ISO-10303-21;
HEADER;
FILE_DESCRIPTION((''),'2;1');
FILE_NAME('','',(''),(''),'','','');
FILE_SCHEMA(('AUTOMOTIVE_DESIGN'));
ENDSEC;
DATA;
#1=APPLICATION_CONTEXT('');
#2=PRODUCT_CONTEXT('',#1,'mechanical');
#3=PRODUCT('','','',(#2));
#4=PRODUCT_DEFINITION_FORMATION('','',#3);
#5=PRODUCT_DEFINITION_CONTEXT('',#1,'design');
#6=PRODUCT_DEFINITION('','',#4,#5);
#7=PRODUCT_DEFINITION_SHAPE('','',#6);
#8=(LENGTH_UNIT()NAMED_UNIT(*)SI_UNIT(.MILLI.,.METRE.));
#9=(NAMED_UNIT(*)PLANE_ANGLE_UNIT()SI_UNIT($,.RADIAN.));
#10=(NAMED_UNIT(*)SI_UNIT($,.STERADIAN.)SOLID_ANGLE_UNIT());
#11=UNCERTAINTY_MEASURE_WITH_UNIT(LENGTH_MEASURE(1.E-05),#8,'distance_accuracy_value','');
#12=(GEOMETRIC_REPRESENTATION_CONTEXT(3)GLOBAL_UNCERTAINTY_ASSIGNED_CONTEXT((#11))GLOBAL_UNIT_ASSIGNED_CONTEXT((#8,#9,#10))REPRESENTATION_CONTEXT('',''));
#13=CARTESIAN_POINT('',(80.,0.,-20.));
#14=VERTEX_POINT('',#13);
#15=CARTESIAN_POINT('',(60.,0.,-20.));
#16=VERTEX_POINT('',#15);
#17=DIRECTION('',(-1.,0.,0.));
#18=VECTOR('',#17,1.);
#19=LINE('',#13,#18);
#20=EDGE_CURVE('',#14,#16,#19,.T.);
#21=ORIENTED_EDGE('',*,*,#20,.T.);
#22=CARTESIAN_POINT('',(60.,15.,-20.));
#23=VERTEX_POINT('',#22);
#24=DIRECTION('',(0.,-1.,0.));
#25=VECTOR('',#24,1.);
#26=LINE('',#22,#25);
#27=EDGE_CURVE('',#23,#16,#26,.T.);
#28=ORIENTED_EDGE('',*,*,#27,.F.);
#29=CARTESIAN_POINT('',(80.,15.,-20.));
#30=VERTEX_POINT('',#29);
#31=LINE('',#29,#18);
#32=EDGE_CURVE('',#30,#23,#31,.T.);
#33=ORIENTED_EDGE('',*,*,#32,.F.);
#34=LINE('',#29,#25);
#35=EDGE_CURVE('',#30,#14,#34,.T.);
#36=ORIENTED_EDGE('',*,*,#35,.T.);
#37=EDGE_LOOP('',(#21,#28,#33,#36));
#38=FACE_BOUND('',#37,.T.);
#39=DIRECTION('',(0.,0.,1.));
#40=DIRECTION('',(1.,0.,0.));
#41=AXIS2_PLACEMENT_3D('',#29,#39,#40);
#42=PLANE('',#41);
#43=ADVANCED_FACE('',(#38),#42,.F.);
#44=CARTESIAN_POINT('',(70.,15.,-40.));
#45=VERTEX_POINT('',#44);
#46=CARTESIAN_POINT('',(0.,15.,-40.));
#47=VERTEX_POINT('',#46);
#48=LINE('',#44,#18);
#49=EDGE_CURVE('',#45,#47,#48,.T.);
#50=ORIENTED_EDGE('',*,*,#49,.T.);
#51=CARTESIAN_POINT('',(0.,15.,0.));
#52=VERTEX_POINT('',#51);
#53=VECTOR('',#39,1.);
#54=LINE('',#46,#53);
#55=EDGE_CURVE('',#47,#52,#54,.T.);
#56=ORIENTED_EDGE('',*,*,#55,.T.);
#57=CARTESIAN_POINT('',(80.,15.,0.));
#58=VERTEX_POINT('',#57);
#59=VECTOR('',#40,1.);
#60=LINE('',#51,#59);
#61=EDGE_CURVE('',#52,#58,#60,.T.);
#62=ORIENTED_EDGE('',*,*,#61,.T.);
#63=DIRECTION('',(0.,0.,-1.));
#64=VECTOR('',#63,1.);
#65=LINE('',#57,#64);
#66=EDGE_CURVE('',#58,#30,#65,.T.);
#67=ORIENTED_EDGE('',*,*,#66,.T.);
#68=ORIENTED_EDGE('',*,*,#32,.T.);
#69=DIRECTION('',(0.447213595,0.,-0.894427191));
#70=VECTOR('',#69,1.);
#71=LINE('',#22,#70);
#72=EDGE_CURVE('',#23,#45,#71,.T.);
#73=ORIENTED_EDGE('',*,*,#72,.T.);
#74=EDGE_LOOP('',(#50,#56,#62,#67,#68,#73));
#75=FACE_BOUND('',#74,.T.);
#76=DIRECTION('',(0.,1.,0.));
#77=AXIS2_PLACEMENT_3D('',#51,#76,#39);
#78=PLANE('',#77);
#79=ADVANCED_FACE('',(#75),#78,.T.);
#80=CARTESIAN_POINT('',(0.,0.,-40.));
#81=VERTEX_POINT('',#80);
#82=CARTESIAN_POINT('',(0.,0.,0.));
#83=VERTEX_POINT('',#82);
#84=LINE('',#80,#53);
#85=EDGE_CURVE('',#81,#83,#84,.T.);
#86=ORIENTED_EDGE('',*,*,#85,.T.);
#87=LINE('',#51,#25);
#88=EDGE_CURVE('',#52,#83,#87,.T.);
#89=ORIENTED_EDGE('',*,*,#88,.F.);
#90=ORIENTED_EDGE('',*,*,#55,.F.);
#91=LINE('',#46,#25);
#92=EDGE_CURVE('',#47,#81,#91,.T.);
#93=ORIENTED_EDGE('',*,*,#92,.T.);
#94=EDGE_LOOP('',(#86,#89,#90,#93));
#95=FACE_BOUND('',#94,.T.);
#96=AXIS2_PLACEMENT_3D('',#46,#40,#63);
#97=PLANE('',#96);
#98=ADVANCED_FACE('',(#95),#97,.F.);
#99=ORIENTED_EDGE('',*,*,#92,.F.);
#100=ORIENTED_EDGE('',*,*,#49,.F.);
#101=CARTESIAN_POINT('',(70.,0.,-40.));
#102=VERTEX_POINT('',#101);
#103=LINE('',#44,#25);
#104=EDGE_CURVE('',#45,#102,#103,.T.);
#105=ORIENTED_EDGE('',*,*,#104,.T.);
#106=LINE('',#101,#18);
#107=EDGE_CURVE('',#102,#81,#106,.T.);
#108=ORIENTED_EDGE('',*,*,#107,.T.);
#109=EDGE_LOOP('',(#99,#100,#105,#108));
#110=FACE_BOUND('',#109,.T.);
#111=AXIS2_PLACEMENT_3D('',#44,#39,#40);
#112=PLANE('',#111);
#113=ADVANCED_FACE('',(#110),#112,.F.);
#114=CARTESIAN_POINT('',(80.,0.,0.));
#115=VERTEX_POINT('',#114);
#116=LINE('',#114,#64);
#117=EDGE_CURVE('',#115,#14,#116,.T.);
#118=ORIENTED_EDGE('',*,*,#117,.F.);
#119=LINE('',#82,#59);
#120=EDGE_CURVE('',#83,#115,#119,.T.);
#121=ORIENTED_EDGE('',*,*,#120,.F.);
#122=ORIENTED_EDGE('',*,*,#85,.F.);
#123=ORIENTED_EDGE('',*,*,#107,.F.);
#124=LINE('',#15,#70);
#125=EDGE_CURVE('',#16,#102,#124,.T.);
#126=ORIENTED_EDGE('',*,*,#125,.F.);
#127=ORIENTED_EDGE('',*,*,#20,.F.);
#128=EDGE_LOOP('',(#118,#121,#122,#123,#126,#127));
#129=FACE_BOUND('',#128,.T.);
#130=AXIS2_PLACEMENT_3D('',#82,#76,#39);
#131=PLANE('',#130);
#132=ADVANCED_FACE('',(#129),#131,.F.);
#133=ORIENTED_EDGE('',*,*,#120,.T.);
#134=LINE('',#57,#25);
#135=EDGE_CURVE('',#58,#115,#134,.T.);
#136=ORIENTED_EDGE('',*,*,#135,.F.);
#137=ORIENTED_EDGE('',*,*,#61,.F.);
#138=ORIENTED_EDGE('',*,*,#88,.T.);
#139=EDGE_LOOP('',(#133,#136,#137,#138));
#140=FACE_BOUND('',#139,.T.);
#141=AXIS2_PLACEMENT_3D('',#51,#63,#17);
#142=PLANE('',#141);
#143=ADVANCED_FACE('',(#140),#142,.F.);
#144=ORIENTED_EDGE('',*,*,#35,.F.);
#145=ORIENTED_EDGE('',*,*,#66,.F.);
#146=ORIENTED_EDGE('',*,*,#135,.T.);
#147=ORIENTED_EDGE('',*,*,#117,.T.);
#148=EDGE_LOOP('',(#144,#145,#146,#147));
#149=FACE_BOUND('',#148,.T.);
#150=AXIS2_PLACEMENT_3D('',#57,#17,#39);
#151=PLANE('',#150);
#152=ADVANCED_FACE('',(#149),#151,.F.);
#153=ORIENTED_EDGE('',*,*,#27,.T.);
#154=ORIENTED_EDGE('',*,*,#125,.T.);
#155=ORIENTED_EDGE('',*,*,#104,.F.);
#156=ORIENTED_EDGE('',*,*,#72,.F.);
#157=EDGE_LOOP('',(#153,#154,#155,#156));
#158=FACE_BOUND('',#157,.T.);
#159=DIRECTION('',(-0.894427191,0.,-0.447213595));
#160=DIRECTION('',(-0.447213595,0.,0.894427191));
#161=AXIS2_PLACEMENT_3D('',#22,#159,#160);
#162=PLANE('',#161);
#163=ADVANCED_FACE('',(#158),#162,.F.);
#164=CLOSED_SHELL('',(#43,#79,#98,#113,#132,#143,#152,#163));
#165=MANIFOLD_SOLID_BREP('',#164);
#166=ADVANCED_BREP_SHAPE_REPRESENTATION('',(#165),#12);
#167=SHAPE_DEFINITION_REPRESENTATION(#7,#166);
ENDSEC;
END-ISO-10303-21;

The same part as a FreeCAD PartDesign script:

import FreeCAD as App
import Part
import Sketcher
from FreeCAD import Vector
Q = App.Units.Quantity


def add_polygon(sketch, points):
    """Adds a closed chain of lines whose ends are joined by coincident constraints."""
    first, n = sketch.GeometryCount, len(points)
    for a, b in zip(points, points[1:] + points[:1]):
        sketch.addGeometry(Part.LineSegment(App.Vector(*a, 0), App.Vector(*b, 0)), False)
    for i in range(n):
        sketch.addConstraint(Sketcher.Constraint("Coincident", first + i, 2, first + (i + 1) % n, 1))

doc = App.newDocument("Part")
body = doc.addObject("PartDesign::Body", "Body")

sketch1 = doc.addObject("Sketcher::SketchObject", "Sketch")
body.addObject(sketch1)
sketch1.AttachmentSupport = (doc.XZ_Plane, [""])
sketch1.MapMode = "FlatFace"
add_polygon(sketch1, [(0, 0), (80, 0), (80, -20), (60, -20), (70, -40), (0, -40)])
sketch1.addConstraint(Sketcher.Constraint("Horizontal", 0))
sketch1.addConstraint(Sketcher.Constraint("Vertical", 1))
sketch1.addConstraint(Sketcher.Constraint("Horizontal", 2))
sketch1.addConstraint(Sketcher.Constraint("Horizontal", 4))
sketch1.addConstraint(Sketcher.Constraint("Vertical", 5))
sketch1.addConstraint(Sketcher.Constraint("Coincident", 5, 2, -1, 1))
sketch1.addConstraint(Sketcher.Constraint("Equal", 2, 1))
sketch1.addConstraint(Sketcher.Constraint("DistanceX", 0, 1, 0, 2, Q("80 mm")))
sketch1.addConstraint(Sketcher.Constraint("DistanceX", 2, 2, 2, 1, Q("20 mm")))
sketch1.addConstraint(Sketcher.Constraint("DistanceX", 4, 2, 4, 1, Q("70 mm")))
sketch1.addConstraint(Sketcher.Constraint("DistanceY", 5, 1, 5, 2, Q("40 mm")))
pad1 = doc.addObject("PartDesign::Pad", "Pad")
body.addObject(pad1)
pad1.Profile = sketch1
pad1.Length = 15
pad1.Reversed = True

doc.recompute()
